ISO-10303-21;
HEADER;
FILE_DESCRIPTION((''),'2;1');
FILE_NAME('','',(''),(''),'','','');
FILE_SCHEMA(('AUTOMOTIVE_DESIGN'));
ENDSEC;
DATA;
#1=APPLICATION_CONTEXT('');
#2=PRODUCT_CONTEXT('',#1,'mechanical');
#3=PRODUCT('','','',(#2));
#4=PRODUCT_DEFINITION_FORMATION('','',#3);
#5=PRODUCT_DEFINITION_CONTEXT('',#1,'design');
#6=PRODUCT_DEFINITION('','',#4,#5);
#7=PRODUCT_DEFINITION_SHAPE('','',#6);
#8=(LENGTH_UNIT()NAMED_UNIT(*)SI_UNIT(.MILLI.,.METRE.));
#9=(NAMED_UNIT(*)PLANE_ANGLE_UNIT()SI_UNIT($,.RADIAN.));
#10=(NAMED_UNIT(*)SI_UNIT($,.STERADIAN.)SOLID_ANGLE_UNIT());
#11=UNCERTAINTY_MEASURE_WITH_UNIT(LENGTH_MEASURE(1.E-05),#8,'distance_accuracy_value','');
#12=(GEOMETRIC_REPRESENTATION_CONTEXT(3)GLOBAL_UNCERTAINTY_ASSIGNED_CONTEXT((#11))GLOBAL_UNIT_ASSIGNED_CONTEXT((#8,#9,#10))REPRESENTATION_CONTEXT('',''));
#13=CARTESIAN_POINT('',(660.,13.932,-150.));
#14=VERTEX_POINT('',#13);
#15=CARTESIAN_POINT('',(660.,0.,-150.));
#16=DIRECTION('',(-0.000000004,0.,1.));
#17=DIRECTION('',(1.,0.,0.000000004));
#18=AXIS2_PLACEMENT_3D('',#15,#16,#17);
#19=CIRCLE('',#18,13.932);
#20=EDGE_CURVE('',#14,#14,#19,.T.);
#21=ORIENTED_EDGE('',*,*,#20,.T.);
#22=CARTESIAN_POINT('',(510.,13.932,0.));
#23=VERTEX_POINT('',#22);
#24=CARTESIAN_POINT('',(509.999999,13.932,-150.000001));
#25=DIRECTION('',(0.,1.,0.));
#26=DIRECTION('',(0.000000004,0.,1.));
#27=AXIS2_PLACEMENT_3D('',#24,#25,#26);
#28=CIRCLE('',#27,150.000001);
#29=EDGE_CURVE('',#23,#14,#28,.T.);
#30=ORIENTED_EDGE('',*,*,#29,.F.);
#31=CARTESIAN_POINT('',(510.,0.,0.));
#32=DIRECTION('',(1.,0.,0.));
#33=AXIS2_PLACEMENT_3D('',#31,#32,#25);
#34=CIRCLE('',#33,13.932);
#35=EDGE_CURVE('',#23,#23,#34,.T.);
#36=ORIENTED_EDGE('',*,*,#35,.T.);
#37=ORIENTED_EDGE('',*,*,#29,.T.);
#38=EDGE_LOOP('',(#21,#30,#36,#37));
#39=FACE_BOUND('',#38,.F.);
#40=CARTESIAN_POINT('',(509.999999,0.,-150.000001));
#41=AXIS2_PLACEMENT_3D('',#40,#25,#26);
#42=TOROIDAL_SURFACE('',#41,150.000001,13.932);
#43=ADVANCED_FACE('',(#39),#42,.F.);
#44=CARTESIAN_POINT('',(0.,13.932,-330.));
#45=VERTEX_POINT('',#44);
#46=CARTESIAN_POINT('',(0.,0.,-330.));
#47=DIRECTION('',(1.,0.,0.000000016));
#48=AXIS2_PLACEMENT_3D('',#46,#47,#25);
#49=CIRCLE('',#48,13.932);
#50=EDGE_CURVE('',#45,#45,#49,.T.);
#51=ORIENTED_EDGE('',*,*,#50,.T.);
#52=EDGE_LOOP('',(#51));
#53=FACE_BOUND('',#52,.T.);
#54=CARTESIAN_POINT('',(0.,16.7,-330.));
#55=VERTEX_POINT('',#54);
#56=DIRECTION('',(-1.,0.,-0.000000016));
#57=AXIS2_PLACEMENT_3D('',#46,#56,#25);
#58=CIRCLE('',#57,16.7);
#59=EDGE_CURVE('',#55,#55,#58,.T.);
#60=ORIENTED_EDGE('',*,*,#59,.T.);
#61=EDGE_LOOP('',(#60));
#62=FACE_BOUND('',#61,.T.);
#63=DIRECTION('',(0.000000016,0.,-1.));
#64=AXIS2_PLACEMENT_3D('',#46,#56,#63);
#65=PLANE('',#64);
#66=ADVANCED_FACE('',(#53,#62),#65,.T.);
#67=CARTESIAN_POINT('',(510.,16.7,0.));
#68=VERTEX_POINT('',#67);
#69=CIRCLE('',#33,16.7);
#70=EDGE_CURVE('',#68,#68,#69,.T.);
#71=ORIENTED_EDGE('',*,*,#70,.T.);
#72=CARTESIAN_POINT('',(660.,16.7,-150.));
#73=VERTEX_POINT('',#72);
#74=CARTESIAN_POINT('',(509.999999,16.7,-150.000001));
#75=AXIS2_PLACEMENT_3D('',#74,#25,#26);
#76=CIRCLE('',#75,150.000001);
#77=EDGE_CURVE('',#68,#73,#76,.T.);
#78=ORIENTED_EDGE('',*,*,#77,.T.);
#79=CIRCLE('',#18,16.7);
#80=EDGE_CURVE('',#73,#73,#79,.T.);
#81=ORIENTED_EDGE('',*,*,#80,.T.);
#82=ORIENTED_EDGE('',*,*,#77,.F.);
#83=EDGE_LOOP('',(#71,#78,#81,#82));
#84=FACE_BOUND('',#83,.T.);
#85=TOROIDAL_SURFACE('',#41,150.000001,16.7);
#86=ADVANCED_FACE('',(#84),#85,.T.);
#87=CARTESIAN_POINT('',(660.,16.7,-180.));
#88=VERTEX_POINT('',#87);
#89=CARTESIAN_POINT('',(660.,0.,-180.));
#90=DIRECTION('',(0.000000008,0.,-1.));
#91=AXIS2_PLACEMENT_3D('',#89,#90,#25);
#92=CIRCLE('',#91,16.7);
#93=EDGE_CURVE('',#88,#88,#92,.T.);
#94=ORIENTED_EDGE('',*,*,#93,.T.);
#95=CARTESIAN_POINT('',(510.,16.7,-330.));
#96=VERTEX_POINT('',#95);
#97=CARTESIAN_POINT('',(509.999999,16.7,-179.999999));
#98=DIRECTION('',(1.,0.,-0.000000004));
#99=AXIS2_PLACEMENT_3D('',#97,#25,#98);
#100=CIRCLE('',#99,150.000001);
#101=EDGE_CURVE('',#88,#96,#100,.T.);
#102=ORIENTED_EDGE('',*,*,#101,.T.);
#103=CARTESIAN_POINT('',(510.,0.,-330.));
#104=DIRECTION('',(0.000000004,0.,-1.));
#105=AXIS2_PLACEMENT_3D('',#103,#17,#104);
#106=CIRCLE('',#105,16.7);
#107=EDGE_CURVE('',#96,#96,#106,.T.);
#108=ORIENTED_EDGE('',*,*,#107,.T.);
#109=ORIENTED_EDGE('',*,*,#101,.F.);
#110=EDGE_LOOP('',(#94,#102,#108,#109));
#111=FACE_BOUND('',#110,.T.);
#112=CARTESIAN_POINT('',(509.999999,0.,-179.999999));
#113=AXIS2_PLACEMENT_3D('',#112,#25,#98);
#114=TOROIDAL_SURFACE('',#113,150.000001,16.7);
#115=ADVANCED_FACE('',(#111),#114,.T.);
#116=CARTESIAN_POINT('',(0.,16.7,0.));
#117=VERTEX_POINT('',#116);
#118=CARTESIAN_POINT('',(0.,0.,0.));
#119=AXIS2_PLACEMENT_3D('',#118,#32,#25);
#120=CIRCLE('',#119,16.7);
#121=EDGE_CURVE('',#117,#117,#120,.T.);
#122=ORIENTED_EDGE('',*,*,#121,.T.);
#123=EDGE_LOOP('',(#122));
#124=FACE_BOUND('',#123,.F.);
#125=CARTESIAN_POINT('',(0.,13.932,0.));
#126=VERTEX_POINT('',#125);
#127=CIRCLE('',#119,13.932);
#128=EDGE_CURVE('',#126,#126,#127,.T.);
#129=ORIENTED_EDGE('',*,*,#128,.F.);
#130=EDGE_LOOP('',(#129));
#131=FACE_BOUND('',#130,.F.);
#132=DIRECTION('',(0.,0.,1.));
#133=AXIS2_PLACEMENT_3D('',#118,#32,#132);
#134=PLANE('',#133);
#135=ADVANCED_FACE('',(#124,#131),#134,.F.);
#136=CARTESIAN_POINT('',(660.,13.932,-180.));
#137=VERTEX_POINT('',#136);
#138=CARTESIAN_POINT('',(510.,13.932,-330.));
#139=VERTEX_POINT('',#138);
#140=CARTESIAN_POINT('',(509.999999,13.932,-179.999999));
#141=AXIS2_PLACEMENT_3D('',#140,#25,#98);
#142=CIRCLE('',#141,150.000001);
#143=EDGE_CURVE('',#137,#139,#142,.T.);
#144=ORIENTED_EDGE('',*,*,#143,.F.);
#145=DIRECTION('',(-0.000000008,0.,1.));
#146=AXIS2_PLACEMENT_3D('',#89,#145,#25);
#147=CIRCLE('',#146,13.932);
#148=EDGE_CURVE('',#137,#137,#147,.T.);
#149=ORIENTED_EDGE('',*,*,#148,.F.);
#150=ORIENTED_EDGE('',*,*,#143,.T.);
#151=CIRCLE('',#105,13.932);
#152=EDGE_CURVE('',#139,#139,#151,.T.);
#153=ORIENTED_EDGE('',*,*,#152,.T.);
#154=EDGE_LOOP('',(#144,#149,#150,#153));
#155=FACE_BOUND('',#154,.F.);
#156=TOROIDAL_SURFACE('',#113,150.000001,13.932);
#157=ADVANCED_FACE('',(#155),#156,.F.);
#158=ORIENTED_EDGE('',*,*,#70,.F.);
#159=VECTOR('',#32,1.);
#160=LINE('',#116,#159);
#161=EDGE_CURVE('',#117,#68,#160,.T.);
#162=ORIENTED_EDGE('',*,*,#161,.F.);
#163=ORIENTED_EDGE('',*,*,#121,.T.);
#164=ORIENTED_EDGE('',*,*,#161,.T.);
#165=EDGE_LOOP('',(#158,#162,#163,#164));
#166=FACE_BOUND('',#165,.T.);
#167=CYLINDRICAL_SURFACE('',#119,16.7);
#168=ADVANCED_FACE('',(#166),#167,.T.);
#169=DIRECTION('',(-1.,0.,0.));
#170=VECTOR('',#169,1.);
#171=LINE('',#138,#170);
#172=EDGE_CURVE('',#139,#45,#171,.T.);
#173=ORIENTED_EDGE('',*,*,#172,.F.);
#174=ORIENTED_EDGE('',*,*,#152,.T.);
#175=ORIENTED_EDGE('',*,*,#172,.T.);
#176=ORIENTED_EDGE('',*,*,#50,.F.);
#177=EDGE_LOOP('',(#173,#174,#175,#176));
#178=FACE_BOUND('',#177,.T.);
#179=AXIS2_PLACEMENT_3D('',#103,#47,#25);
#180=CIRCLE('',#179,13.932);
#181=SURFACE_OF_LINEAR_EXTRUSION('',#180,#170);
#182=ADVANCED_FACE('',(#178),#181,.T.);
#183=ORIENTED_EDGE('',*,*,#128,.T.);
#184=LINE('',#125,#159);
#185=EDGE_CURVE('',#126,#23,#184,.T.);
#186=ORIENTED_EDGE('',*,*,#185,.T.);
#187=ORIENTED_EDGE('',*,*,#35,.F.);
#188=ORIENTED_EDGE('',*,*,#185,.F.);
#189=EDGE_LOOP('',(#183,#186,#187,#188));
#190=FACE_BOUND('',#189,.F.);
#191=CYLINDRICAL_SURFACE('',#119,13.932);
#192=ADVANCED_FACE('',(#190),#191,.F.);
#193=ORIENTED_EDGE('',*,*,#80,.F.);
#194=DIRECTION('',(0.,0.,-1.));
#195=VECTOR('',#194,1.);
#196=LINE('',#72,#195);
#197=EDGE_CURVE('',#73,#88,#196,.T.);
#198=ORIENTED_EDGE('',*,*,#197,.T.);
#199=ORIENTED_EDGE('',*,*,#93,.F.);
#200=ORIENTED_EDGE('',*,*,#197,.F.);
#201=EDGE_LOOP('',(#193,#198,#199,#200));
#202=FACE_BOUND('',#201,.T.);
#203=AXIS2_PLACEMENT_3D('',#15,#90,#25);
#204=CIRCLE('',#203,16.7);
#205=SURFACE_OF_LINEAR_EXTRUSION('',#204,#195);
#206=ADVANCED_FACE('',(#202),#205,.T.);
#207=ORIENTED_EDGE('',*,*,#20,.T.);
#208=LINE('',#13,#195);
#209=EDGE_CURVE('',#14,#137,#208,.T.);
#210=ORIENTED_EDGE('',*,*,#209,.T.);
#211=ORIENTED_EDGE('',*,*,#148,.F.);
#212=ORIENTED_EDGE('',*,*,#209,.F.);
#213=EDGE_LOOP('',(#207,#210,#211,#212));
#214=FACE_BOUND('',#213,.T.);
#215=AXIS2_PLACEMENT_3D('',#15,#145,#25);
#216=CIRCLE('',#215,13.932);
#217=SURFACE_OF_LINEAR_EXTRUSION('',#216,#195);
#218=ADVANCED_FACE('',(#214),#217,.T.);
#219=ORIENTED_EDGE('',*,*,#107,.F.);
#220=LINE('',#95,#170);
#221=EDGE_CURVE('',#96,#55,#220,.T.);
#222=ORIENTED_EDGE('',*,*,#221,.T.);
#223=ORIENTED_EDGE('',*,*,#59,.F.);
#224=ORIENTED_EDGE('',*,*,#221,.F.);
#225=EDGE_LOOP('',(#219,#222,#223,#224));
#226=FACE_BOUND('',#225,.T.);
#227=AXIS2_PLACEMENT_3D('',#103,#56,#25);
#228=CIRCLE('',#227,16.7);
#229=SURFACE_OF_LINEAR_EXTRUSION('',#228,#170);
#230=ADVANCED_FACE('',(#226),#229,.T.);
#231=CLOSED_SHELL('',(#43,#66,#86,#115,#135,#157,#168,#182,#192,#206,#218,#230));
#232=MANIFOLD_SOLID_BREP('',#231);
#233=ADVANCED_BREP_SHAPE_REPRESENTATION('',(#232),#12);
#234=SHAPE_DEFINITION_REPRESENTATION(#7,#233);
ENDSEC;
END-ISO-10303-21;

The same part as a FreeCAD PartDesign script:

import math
import FreeCAD as App
import Part
import Sketcher

V = App.Vector

doc = App.newDocument("Part")
body = doc.addObject("PartDesign::Body", "Body")

# Sketch on YZ plane
sketch1 = body.newObject("Sketcher::SketchObject", "Sketch")
sketch1.AttachmentSupport = (doc.getObject("YZ_Plane"), [""])
sketch1.MapMode = "FlatFace"
sketch1.addGeometry(Part.Circle(V(0, 0, 0), V(0, 0, 1), 17), False)
sketch1.addGeometry(Part.Circle(V(0, 0, 0), V(0, 0, 1), 14), False)
sketch1.addConstraint(Sketcher.Constraint("Coincident", 0, 3, -1, 1))
sketch1.addConstraint(Sketcher.Constraint("Coincident", 1, 3, -1, 1))
sketch1.addConstraint(Sketcher.Constraint("Diameter", 0, 33.4))
sketch1.addConstraint(Sketcher.Constraint("Diameter", 1, 27.864))

# Sketch on XZ plane
sketch2 = body.newObject("Sketcher::SketchObject", "Sketch001")
sketch2.AttachmentSupport = (doc.getObject("XZ_Plane"), [""])
sketch2.MapMode = "FlatFace"
sketch2.addGeometry(Part.LineSegment(V(0, 0, 0), V(510, 0, 0)), False)
sketch2.addGeometry(Part.ArcOfCircle(Part.Circle(V(510, -150, 0), V(0, 0, 1), 150), math.radians(0), math.radians(90)), False)
sketch2.addGeometry(Part.LineSegment(V(660, -150, 0), V(660, -180, 0)), False)
sketch2.addGeometry(Part.ArcOfCircle(Part.Circle(V(510, -180, 0), V(0, 0, 1), 150), math.radians(-90), math.radians(0)), False)
sketch2.addGeometry(Part.LineSegment(V(510, -330, 0), V(0, -330, 0)), False)
sketch2.addConstraint(Sketcher.Constraint("Tangent", 0, 2, 1, 2))
sketch2.addConstraint(Sketcher.Constraint("Tangent", 1, 1, 2, 1))
sketch2.addConstraint(Sketcher.Constraint("Tangent", 2, 2, 3, 2))
sketch2.addConstraint(Sketcher.Constraint("Tangent", 3, 1, 4, 1))
sketch2.addConstraint(Sketcher.Constraint("Horizontal", 0))
sketch2.addConstraint(Sketcher.Constraint("Vertical", 2))
sketch2.addConstraint(Sketcher.Constraint("Horizontal", 4))
sketch2.addConstraint(Sketcher.Constraint("Coincident", 0, 1, -1, 1))
sketch2.addConstraint(Sketcher.Constraint("Equal", 1, 3))
sketch2.addConstraint(Sketcher.Constraint("PointOnObject", 4, 2, -2))
sketch2.addConstraint(Sketcher.Constraint("Radius", 1, 150.000001))
sketch2.addConstraint(Sketcher.Constraint("DistanceX", 0, 1, 0, 2, 510.0))
sketch2.addConstraint(Sketcher.Constraint("DistanceY", 2, 2, 2, 1, 30.0))
doc.recompute()

additivepipe = body.newObject("PartDesign::AdditivePipe", "AdditivePipe")
additivepipe.Profile = sketch1
additivepipe.Spine = (sketch2, ["Edge1", "Edge2", "Edge3", "Edge4", "Edge5"])

doc.recompute()
